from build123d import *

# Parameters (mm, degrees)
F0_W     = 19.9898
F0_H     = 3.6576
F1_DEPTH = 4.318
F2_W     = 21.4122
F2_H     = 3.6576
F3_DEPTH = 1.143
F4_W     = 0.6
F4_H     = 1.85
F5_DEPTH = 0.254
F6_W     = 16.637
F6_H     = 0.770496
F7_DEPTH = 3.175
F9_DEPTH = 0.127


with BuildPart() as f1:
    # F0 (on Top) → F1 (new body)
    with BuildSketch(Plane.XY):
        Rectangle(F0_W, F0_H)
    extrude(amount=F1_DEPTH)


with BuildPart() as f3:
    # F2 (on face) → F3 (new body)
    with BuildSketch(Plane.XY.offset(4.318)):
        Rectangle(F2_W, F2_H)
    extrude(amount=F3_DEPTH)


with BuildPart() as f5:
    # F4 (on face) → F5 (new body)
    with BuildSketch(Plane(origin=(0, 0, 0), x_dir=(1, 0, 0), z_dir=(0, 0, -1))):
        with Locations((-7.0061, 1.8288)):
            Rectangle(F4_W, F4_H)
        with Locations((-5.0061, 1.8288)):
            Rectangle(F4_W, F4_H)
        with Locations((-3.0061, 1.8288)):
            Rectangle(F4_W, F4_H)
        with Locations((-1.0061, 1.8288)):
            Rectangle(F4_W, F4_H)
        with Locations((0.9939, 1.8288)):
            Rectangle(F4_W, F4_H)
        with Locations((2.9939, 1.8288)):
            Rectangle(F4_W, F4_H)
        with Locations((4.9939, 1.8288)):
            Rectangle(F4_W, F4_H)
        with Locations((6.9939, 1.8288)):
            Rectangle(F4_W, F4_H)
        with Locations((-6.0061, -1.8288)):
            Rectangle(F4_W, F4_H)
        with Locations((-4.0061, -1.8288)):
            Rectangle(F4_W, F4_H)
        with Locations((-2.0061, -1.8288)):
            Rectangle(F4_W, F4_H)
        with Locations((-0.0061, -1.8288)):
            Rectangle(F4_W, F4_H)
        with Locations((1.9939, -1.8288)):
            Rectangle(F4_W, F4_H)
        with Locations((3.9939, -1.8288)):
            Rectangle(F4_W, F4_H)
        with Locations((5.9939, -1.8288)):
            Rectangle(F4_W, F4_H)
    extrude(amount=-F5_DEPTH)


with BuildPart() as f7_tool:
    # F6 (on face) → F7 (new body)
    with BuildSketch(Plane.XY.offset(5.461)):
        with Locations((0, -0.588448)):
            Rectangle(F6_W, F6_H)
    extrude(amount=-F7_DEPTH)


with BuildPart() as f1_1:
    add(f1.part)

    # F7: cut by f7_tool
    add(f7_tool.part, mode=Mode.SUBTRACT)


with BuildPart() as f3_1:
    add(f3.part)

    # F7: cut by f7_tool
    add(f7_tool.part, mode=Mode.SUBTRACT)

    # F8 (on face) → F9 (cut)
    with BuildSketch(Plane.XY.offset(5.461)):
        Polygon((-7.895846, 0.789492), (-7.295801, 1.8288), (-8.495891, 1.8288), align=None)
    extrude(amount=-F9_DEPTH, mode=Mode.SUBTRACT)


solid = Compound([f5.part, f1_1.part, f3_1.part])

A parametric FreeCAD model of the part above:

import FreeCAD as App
import Part
import Sketcher
from FreeCAD import Vector
Q = App.Units.Quantity


def add_polygon(sketch, points):
    """Adds a closed chain of lines whose ends are joined by coincident constraints."""
    first, n = sketch.GeometryCount, len(points)
    for a, b in zip(points, points[1:] + points[:1]):
        sketch.addGeometry(Part.LineSegment(App.Vector(*a, 0), App.Vector(*b, 0)), False)
    for i in range(n):
        sketch.addConstraint(Sketcher.Constraint("Coincident", first + i, 2, first + (i + 1) % n, 1))

doc = App.newDocument("Part")
body = doc.addObject("PartDesign::Body", "Body")

sketch1 = body.newObject("Sketcher::SketchObject", "Sketch")
sketch1.AttachmentSupport = (doc.getObject("XY_Plane"), [""])
sketch1.MapMode = "FlatFace"
add_polygon(sketch1, [(-10, 1.8), (-10, -1.8), (10, -1.8), (10, 1.8)])
sketch1.addConstraint(Sketcher.Constraint("Vertical", 0))
sketch1.addConstraint(Sketcher.Constraint("Horizontal", 1))
sketch1.addConstraint(Sketcher.Constraint("Vertical", 2))
sketch1.addConstraint(Sketcher.Constraint("Horizontal", 3))
sketch1.addConstraint(Sketcher.Constraint("Symmetric", 0, 2, 2, 2, -1, 1))
sketch1.addConstraint(Sketcher.Constraint("DistanceX", 1, 1, 1, 2, Q("0.787 in")))
sketch1.addConstraint(Sketcher.Constraint("DistanceY", 0, 2, 0, 1, Q("0.144 in")))
pad1 = body.newObject("PartDesign::Pad", "Pad")
pad1.Profile = sketch1
pad1.Length = Q("0.17 in")
body2 = doc.addObject("PartDesign::Body", "Body001")

sketch2 = body2.newObject("Sketcher::SketchObject", "Sketch001")
sketch2.AttachmentSupport = (doc.getObject("XY_Plane001"), [""])
sketch2.MapMode = "FlatFace"
sketch2.AttachmentOffset = App.Placement(Vector(0, 0, 0.17 * 25.4), App.Rotation())
add_polygon(sketch2, [(-10.7, 1.8), (-10.7, -1.8), (10.7, -1.8), (10.7, 1.8)])
sketch2.addConstraint(Sketcher.Constraint("Vertical", 0))
sketch2.addConstraint(Sketcher.Constraint("Horizontal", 1))
sketch2.addConstraint(Sketcher.Constraint("Vertical", 2))
sketch2.addConstraint(Sketcher.Constraint("Horizontal", 3))
sketch2.addConstraint(Sketcher.Constraint("Symmetric", 0, 2, 2, 2, -1, 1))
sketch2.addConstraint(Sketcher.Constraint("DistanceX", 1, 1, 1, 2, Q("0.843 in")))
sketch2.addConstraint(Sketcher.Constraint("DistanceY", 0, 2, 0, 1, Q("0.144 in")))
pad2 = body2.newObject("PartDesign::Pad", "Pad001")
pad2.Profile = sketch2
pad2.Length = Q("0.045 in")
body3 = doc.addObject("PartDesign::Body", "Body002")
body3.AllowCompound = True

sketch3 = body3.newObject("Sketcher::SketchObject", "Sketch002")
sketch3.AttachmentSupport = (doc.getObject("XY_Plane002"), [""])
sketch3.MapMode = "FlatFace"
add_polygon(sketch3, [(-7.3, -2.8), (-7.3, -0.9), (-6.7, -0.9), (-6.7, -2.8)])
add_polygon(sketch3, [(-5.3, -2.8), (-5.3, -0.9), (-4.7, -0.9), (-4.7, -2.8)])
add_polygon(sketch3, [(-3.3, -2.8), (-3.3, -0.9), (-2.7, -0.9), (-2.7, -2.8)])
add_polygon(sketch3, [(-1.3, -2.8), (-1.3, -0.9), (-0.7, -0.9), (-0.7, -2.8)])
add_polygon(sketch3, [(0.7, -2.8), (0.7, -0.9), (1.3, -0.9), (1.3, -2.8)])
add_polygon(sketch3, [(2.7, -2.8), (2.7, -0.9), (3.3, -0.9), (3.3, -2.8)])
add_polygon(sketch3, [(4.7, -2.8), (4.7, -0.9), (5.3, -0.9), (5.3, -2.8)])
add_polygon(sketch3, [(6.7, -2.8), (6.7, -0.9), (7.3, -0.9), (7.3, -2.8)])
add_polygon(sketch3, [(-6.3, 0.9), (-6.3, 2.8), (-5.7, 2.8), (-5.7, 0.9)])
add_polygon(sketch3, [(-4.3, 0.9), (-4.3, 2.8), (-3.7, 2.8), (-3.7, 0.9)])
add_polygon(sketch3, [(-2.3, 0.9), (-2.3, 2.8), (-1.7, 2.8), (-1.7, 0.9)])
add_polygon(sketch3, [(-0.3, 0.9), (-0.3, 2.8), (0.3, 2.8), (0.3, 0.9)])
add_polygon(sketch3, [(1.7, 0.9), (1.7, 2.8), (2.3, 2.8), (2.3, 0.9)])
add_polygon(sketch3, [(3.7, 0.9), (3.7, 2.8), (4.3, 2.8), (4.3, 0.9)])
add_polygon(sketch3, [(5.7, 0.9), (5.7, 2.8), (6.3, 2.8), (6.3, 0.9)])
sketch3.addConstraint(Sketcher.Constraint("Vertical", 0))
sketch3.addConstraint(Sketcher.Constraint("Horizontal", 1))
sketch3.addConstraint(Sketcher.Constraint("Vertical", 2))
sketch3.addConstraint(Sketcher.Constraint("Horizontal", 3))
sketch3.addConstraint(Sketcher.Constraint("Vertical", 4))
sketch3.addConstraint(Sketcher.Constraint("Horizontal", 5))
sketch3.addConstraint(Sketcher.Constraint("Vertical", 6))
sketch3.addConstraint(Sketcher.Constraint("Horizontal", 7))
sketch3.addConstraint(Sketcher.Constraint("Vertical", 8))
sketch3.addConstraint(Sketcher.Constraint("Horizontal", 9))
sketch3.addConstraint(Sketcher.Constraint("Vertical", 10))
sketch3.addConstraint(Sketcher.Constraint("Horizontal", 11))
sketch3.addConstraint(Sketcher.Constraint("Vertical", 12))
sketch3.addConstraint(Sketcher.Constraint("Horizontal", 13))
sketch3.addConstraint(Sketcher.Constraint("Vertical", 14))
sketch3.addConstraint(Sketcher.Constraint("Horizontal", 15))
sketch3.addConstraint(Sketcher.Constraint("Vertical", 16))
sketch3.addConstraint(Sketcher.Constraint("Horizontal", 17))
sketch3.addConstraint(Sketcher.Constraint("Vertical", 18))
sketch3.addConstraint(Sketcher.Constraint("Horizontal", 19))
sketch3.addConstraint(Sketcher.Constraint("Vertical", 20))
sketch3.addConstraint(Sketcher.Constraint("Horizontal", 21))
sketch3.addConstraint(Sketcher.Constraint("Vertical", 22))
sketch3.addConstraint(Sketcher.Constraint("Horizontal", 23))
sketch3.addConstraint(Sketcher.Constraint("Vertical", 24))
sketch3.addConstraint(Sketcher.Constraint("Horizontal", 25))
sketch3.addConstraint(Sketcher.Constraint("Vertical", 26))
sketch3.addConstraint(Sketcher.Constraint("Horizontal", 27))
sketch3.addConstraint(Sketcher.Constraint("Vertical", 28))
sketch3.addConstraint(Sketcher.Constraint("Horizontal", 29))
sketch3.addConstraint(Sketcher.Constraint("Vertical", 30))
sketch3.addConstraint(Sketcher.Constraint("Horizontal", 31))
sketch3.addConstraint(Sketcher.Constraint("Vertical", 32))
sketch3.addConstraint(Sketcher.Constraint("Horizontal", 33))
sketch3.addConstraint(Sketcher.Constraint("Vertical", 34))
sketch3.addConstraint(Sketcher.Constraint("Horizontal", 35))
sketch3.addConstraint(Sketcher.Constraint("Vertical", 36))
sketch3.addConstraint(Sketcher.Constraint("Horizontal", 37))
sketch3.addConstraint(Sketcher.Constraint("Vertical", 38))
sketch3.addConstraint(Sketcher.Constraint("Horizontal", 39))
sketch3.addConstraint(Sketcher.Constraint("Vertical", 40))
sketch3.addConstraint(Sketcher.Constraint("Horizontal", 41))
sketch3.addConstraint(Sketcher.Constraint("Vertical", 42))
sketch3.addConstraint(Sketcher.Constraint("Horizontal", 43))
sketch3.addConstraint(Sketcher.Constraint("Vertical", 44))
sketch3.addConstraint(Sketcher.Constraint("Horizontal", 45))
sketch3.addConstraint(Sketcher.Constraint("Vertical", 46))
sketch3.addConstraint(Sketcher.Constraint("Horizontal", 47))
sketch3.addConstraint(Sketcher.Constraint("Vertical", 48))
sketch3.addConstraint(Sketcher.Constraint("Horizontal", 49))
sketch3.addConstraint(Sketcher.Constraint("Vertical", 50))
sketch3.addConstraint(Sketcher.Constraint("Horizontal", 51))
sketch3.addConstraint(Sketcher.Constraint("Vertical", 52))
sketch3.addConstraint(Sketcher.Constraint("Horizontal", 53))
sketch3.addConstraint(Sketcher.Constraint("Vertical", 54))
sketch3.addConstraint(Sketcher.Constraint("Horizontal", 55))
sketch3.addConstraint(Sketcher.Constraint("Vertical", 56))
sketch3.addConstraint(Sketcher.Constraint("Horizontal", 57))
sketch3.addConstraint(Sketcher.Constraint("Vertical", 58))
sketch3.addConstraint(Sketcher.Constraint("Horizontal", 59))
sketch3.addConstraint(Sketcher.Constraint("Horizontal", 1, 2, 4, 2))
sketch3.addConstraint(Sketcher.Constraint("Horizontal", 3, 2, 6, 2))
sketch3.addConstraint(Sketcher.Constraint("Horizontal", 5, 2, 8, 2))
sketch3.addConstraint(Sketcher.Constraint("Horizontal", 7, 2, 10, 2))
sketch3.addConstraint(Sketcher.Constraint("Horizontal", 9, 2, 12, 2))
sketch3.addConstraint(Sketcher.Constraint("Horizontal", 11, 2, 14, 2))
sketch3.addConstraint(Sketcher.Constraint("Horizontal", 13, 2, 16, 2))
sketch3.addConstraint(Sketcher.Constraint("Horizontal", 15, 2, 18, 2))
sketch3.addConstraint(Sketcher.Constraint("Horizontal", 17, 2, 20, 2))
sketch3.addConstraint(Sketcher.Constraint("Horizontal", 19, 2, 22, 2))
sketch3.addConstraint(Sketcher.Constraint("Horizontal", 21, 2, 24, 2))
sketch3.addConstraint(Sketcher.Constraint("Horizontal", 23, 2, 26, 2))
sketch3.addConstraint(Sketcher.Constraint("Horizontal", 25, 2, 28, 2))
sketch3.addConstraint(Sketcher.Constraint("Horizontal", 27, 2, 30, 2))
sketch3.addConstraint(Sketcher.Constraint("Horizontal", 33, 2, 36, 2))
sketch3.addConstraint(Sketcher.Constraint("Horizontal", 35, 2, 38, 2))
sketch3.addConstraint(Sketcher.Constraint("Horizontal", 37, 2, 40, 2))
sketch3.addConstraint(Sketcher.Constraint("Horizontal", 39, 2, 42, 2))
sketch3.addConstraint(Sketcher.Constraint("Horizontal", 41, 2, 44, 2))
sketch3.addConstraint(Sketcher.Constraint("Horizontal", 43, 2, 46, 2))
sketch3.addConstraint(Sketcher.Constraint("Horizontal", 45, 2, 48, 2))
sketch3.addConstraint(Sketcher.Constraint("Horizontal", 47, 2, 50, 2))
sketch3.addConstraint(Sketcher.Constraint("Horizontal", 49, 2, 52, 2))
sketch3.addConstraint(Sketcher.Constraint("Horizontal", 51, 2, 54, 2))
sketch3.addConstraint(Sketcher.Constraint("Horizontal", 53, 2, 56, 2))
sketch3.addConstraint(Sketcher.Constraint("Horizontal", 55, 2, 58, 2))
sketch3.addConstraint(Sketcher.Constraint("Equal", 3, 5))
sketch3.addConstraint(Sketcher.Constraint("Equal", 7, 9))
sketch3.addConstraint(Sketcher.Constraint("Equal", 11, 13))
sketch3.addConstraint(Sketcher.Constraint("Equal", 15, 17))
sketch3.addConstraint(Sketcher.Constraint("Equal", 19, 21))
sketch3.addConstraint(Sketcher.Constraint("Equal", 23, 25))
sketch3.addConstraint(Sketcher.Constraint("Equal", 27, 29))
sketch3.addConstraint(Sketcher.Constraint("Equal", 31, 33))
sketch3.addConstraint(Sketcher.Constraint("Equal", 35, 37))
sketch3.addConstraint(Sketcher.Constraint("Equal", 39, 41))
sketch3.addConstraint(Sketcher.Constraint("Equal", 43, 45))
sketch3.addConstraint(Sketcher.Constraint("Equal", 47, 49))
sketch3.addConstraint(Sketcher.Constraint("Equal", 51, 53))
sketch3.addConstraint(Sketcher.Constraint("Equal", 55, 57))
sketch3.addConstraint(Sketcher.Constraint("Equal", 30, 32))
sketch3.addConstraint(Sketcher.Constraint("DistanceY", 1, 2, 32, 2, Q("0.144 in")))
sketch3.addConstraint(Sketcher.Constraint("DistanceX", 1, 1, 1, 2, 0.6))
sketch3.addConstraint(Sketcher.Constraint("DistanceY", 0, 1, 0, 2, 1.85))
sketch3.addConstraint(Sketcher.Constraint("DistanceX", 0, 2, -1, 1, 7.3061))
sketch3.addConstraint(Sketcher.Constraint("DistanceY", 0, 2, -1, 1, 0.9038))
sketch3.addConstraint(Sketcher.Constraint("DistanceX", 4, 2, -1, 1, 5.3061))
sketch3.addConstraint(Sketcher.Constraint("DistanceX", 8, 2, -1, 1, 3.3061))
sketch3.addConstraint(Sketcher.Constraint("DistanceX", 12, 2, -1, 1, 1.3061))
sketch3.addConstraint(Sketcher.Constraint("DistanceX", -1, 1, 16, 2, 0.6939))
sketch3.addConstraint(Sketcher.Constraint("DistanceX", -1, 1, 20, 2, 2.6939))
sketch3.addConstraint(Sketcher.Constraint("DistanceX", -1, 1, 24, 2, 4.6939))
sketch3.addConstraint(Sketcher.Constraint("DistanceX", -1, 1, 28, 2, 6.6939))
sketch3.addConstraint(Sketcher.Constraint("DistanceX", 32, 2, -1, 1, 6.3061))
sketch3.addConstraint(Sketcher.Constraint("DistanceX", 36, 2, -1, 1, 4.3061))
sketch3.addConstraint(Sketcher.Constraint("DistanceX", 40, 2, -1, 1, 2.3061))
sketch3.addConstraint(Sketcher.Constraint("DistanceX", 44, 2, -1, 1, 0.3061))
sketch3.addConstraint(Sketcher.Constraint("DistanceX", -1, 1, 48, 2, 1.6939))
sketch3.addConstraint(Sketcher.Constraint("DistanceX", -1, 1, 52, 2, 3.6939))
sketch3.addConstraint(Sketcher.Constraint("DistanceX", -1, 1, 56, 2, 5.6939))
pad3 = body3.newObject("PartDesign::Pad", "Pad002")
pad3.Profile = sketch3
pad3.Length = Q("0.01 in")
body4 = doc.addObject("PartDesign::Body", "Body003")

sketch4 = body4.newObject("Sketcher::SketchObject", "Sketch003")
sketch4.AttachmentSupport = (doc.getObject("XY_Plane003"), [""])
sketch4.MapMode = "FlatFace"
sketch4.AttachmentOffset = App.Placement(Vector(0, 0, 0.215 * 25.4), App.Rotation())
add_polygon(sketch4, [(-8.3, -0.2), (-8.3, -1), (8.3, -1), (8.3, -0.2)])
sketch4.addConstraint(Sketcher.Constraint("Vertical", 0))
sketch4.addConstraint(Sketcher.Constraint("Horizontal", 1))
sketch4.addConstraint(Sketcher.Constraint("Vertical", 2))
sketch4.addConstraint(Sketcher.Constraint("Horizontal", 3))
sketch4.addConstraint(Sketcher.Constraint("DistanceX", 1, 1, 1, 2, Q("0.655 in")))
sketch4.addConstraint(Sketcher.Constraint("DistanceY", 2, 2, -1, 1, Q("0.008 in")))
sketch4.addConstraint(Sketcher.Constraint("DistanceX", 0, 2, -1, 1, Q("0.3275 in")))
sketch4.addConstraint(Sketcher.Constraint("DistanceY", 0, 2, 0, 1, 0.770496))
pad4 = body4.newObject("PartDesign::Pad", "Pad003")
pad4.Profile = sketch4
pad4.Length = Q("0.125 in")
pad4.Reversed = True
doc.recompute()

body5 = doc.addObject("PartDesign::Body", "Body004")
body5.BaseFeature = body4
boolean = body.newObject("PartDesign::Boolean", "Boolean")
boolean.Type = "Cut"
boolean.addObjects([body5])
doc.recompute()

boolean2 = body2.newObject("PartDesign::Boolean", "Boolean001")
boolean2.Type = "Cut"
boolean2.addObjects([body4])

sketch5 = body2.newObject("Sketcher::SketchObject", "Sketch004")
sketch5.AttachmentSupport = (doc.getObject("XY_Plane001"), [""])
sketch5.MapMode = "FlatFace"
sketch5.AttachmentOffset = App.Placement(Vector(0, 0, 0.215 * 25.4), App.Rotation())
add_polygon(sketch5, [(-7.9, 0.8), (-7.3, 1.8), (-8.5, 1.8)])
sketch5.addConstraint(Sketcher.Constraint("Horizontal", 1))
sketch5.addConstraint(Sketcher.Constraint("Equal", 0, 2))
sketch5.addConstraint(Sketcher.Constraint("Angle", 0, Q("59.99999 deg")))
sketch5.addConstraint(Sketcher.Constraint("DistanceY", -1, 1, 0, 2, Q("0.072 in")))
sketch5.addConstraint(Sketcher.Constraint("DistanceX", 1, 2, 1, 1, 1.20009))
sketch5.addConstraint(Sketcher.Constraint("DistanceX", 0, 2, -1, 1, 7.295801))
pocket1 = body2.newObject("PartDesign::Pocket", "Pocket")
pocket1.Profile = sketch5
pocket1.Length = Q("0.005 in")

doc.recompute()
